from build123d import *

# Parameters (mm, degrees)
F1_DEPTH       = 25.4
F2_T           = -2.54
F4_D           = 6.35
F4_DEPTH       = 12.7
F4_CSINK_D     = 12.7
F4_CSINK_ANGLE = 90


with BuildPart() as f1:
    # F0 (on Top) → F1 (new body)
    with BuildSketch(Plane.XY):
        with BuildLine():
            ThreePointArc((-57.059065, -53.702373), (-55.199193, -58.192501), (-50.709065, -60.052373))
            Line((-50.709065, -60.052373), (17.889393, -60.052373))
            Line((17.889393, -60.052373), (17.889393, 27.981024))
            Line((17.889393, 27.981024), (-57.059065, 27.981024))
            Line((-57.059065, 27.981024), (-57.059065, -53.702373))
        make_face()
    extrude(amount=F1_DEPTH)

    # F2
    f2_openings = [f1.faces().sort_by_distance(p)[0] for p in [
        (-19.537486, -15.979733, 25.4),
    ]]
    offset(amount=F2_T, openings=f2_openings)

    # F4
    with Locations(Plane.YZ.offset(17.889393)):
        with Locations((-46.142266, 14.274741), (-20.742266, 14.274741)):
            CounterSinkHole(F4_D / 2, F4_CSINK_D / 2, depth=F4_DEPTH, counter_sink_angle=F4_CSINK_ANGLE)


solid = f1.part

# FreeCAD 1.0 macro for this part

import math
import FreeCAD as App
import Part
import Sketcher

V = App.Vector
Q = App.Units.Quantity


def faces_at(feature, points):
    """Names of the faces that lie closest to the given points."""
    faces = feature.Shape.Faces
    near = lambda p: min(range(len(faces)), key=lambda i: faces[i].distToShape(Part.Vertex(*p))[0])
    return sorted({f"Face{near(p) + 1}" for p in points})

doc = App.newDocument("Part")
body = doc.addObject("PartDesign::Body", "Body")

# Sketch on XY plane
sketch1 = doc.addObject("Sketcher::SketchObject", "Sketch")
body.addObject(sketch1)
sketch1.AttachmentSupport = (doc.XY_Plane, [""])
sketch1.MapMode = "FlatFace"
sketch1.addGeometry(Part.ArcOfCircle(Part.Circle(V(-51, -54, 0), V(0, 0, 1), 6), math.radians(-180), math.radians(-90)), False)
sketch1.addGeometry(Part.LineSegment(V(-51, -60, 0), V(18, -60, 0)), False)
sketch1.addGeometry(Part.LineSegment(V(18, -60, 0), V(18, 28, 0)), False)
sketch1.addGeometry(Part.LineSegment(V(18, 28, 0), V(-57, 28, 0)), False)
sketch1.addGeometry(Part.LineSegment(V(-57, 28, 0), V(-57, -54, 0)), False)
sketch1.addConstraint(Sketcher.Constraint("Tangent", 0, 2, 1, 1))
sketch1.addConstraint(Sketcher.Constraint("Coincident", 1, 2, 2, 1))
sketch1.addConstraint(Sketcher.Constraint("Coincident", 2, 2, 3, 1))
sketch1.addConstraint(Sketcher.Constraint("Coincident", 3, 2, 4, 1))
sketch1.addConstraint(Sketcher.Constraint("Tangent", 4, 2, 0, 1))
sketch1.addConstraint(Sketcher.Constraint("Horizontal", 1))
sketch1.addConstraint(Sketcher.Constraint("Vertical", 2))
sketch1.addConstraint(Sketcher.Constraint("Horizontal", 3))
sketch1.addConstraint(Sketcher.Constraint("Vertical", 4))
sketch1.addConstraint(Sketcher.Constraint("Radius", 0, Q("0.25 in")))
sketch1.addConstraint(Sketcher.Constraint("DistanceX", 1, 1, 1, 2, 68.598458))
sketch1.addConstraint(Sketcher.Constraint("DistanceY", 2, 1, 2, 2, 88.033397))
sketch1.addConstraint(Sketcher.Constraint("DistanceX", 0, 3, -1, 1, 50.709065))
sketch1.addConstraint(Sketcher.Constraint("DistanceY", 0, 3, -1, 1, 53.702373))
pad1 = doc.addObject("PartDesign::Pad", "Pad")
body.addObject(pad1)
pad1.Profile = sketch1
pad1.Length = Q("1 in")
doc.recompute()

thickness = doc.addObject("PartDesign::Thickness", "Thickness")
body.addObject(thickness)
thickness.Base = (pad1, faces_at(pad1, [(-19.585, -16.036, 25.4)]))
thickness.Value = Q("0.1 in")
thickness.Reversed = True
thickness.Join = "Arc"

# Sketch on YZ plane
sketch2 = doc.addObject("Sketcher::SketchObject", "Sketch001")
body.addObject(sketch2)
sketch2.AttachmentSupport = (doc.YZ_Plane, [""])
sketch2.MapMode = "FlatFace"
sketch2.AttachmentOffset = App.Placement(V(0, 0, 17.889393), App.Rotation())
sketch2.addGeometry(Part.Circle(V(-46.1, 14.3, 0), V(0, 0, 1), 3.2), False)
sketch2.addGeometry(Part.Circle(V(-20.7, 14.3, 0), V(0, 0, 1), 3.2), False)
sketch2.addConstraint(Sketcher.Constraint("Equal", 0, 1))
sketch2.addConstraint(Sketcher.Constraint("Horizontal", 0, 3, 1, 3))
sketch2.addConstraint(Sketcher.Constraint("Diameter", 0, Q("0.25 in")))
sketch2.addConstraint(Sketcher.Constraint("DistanceX", 0, 3, 1, 3, Q("1 in")))
sketch2.addConstraint(Sketcher.Constraint("DistanceY", -1, 1, 0, 3, 14.274741))
sketch2.addConstraint(Sketcher.Constraint("DistanceX", 0, 3, -1, 1, 46.142266))
doc.recompute()
hole = doc.addObject("PartDesign::Hole", "Hole")
body.addObject(hole)
hole.Profile = sketch2
hole.ThreadType = "None"
hole.Diameter = Q("0.25 in")
hole.DepthType = "Dimension"
hole.Depth = Q("0.5 in")
hole.DrillPoint = "Flat"
hole.HoleCutType = "Countersink"
hole.HoleCutDiameter = Q("0.5 in")
hole.HoleCutCountersinkAngle = 90

doc.recompute()
